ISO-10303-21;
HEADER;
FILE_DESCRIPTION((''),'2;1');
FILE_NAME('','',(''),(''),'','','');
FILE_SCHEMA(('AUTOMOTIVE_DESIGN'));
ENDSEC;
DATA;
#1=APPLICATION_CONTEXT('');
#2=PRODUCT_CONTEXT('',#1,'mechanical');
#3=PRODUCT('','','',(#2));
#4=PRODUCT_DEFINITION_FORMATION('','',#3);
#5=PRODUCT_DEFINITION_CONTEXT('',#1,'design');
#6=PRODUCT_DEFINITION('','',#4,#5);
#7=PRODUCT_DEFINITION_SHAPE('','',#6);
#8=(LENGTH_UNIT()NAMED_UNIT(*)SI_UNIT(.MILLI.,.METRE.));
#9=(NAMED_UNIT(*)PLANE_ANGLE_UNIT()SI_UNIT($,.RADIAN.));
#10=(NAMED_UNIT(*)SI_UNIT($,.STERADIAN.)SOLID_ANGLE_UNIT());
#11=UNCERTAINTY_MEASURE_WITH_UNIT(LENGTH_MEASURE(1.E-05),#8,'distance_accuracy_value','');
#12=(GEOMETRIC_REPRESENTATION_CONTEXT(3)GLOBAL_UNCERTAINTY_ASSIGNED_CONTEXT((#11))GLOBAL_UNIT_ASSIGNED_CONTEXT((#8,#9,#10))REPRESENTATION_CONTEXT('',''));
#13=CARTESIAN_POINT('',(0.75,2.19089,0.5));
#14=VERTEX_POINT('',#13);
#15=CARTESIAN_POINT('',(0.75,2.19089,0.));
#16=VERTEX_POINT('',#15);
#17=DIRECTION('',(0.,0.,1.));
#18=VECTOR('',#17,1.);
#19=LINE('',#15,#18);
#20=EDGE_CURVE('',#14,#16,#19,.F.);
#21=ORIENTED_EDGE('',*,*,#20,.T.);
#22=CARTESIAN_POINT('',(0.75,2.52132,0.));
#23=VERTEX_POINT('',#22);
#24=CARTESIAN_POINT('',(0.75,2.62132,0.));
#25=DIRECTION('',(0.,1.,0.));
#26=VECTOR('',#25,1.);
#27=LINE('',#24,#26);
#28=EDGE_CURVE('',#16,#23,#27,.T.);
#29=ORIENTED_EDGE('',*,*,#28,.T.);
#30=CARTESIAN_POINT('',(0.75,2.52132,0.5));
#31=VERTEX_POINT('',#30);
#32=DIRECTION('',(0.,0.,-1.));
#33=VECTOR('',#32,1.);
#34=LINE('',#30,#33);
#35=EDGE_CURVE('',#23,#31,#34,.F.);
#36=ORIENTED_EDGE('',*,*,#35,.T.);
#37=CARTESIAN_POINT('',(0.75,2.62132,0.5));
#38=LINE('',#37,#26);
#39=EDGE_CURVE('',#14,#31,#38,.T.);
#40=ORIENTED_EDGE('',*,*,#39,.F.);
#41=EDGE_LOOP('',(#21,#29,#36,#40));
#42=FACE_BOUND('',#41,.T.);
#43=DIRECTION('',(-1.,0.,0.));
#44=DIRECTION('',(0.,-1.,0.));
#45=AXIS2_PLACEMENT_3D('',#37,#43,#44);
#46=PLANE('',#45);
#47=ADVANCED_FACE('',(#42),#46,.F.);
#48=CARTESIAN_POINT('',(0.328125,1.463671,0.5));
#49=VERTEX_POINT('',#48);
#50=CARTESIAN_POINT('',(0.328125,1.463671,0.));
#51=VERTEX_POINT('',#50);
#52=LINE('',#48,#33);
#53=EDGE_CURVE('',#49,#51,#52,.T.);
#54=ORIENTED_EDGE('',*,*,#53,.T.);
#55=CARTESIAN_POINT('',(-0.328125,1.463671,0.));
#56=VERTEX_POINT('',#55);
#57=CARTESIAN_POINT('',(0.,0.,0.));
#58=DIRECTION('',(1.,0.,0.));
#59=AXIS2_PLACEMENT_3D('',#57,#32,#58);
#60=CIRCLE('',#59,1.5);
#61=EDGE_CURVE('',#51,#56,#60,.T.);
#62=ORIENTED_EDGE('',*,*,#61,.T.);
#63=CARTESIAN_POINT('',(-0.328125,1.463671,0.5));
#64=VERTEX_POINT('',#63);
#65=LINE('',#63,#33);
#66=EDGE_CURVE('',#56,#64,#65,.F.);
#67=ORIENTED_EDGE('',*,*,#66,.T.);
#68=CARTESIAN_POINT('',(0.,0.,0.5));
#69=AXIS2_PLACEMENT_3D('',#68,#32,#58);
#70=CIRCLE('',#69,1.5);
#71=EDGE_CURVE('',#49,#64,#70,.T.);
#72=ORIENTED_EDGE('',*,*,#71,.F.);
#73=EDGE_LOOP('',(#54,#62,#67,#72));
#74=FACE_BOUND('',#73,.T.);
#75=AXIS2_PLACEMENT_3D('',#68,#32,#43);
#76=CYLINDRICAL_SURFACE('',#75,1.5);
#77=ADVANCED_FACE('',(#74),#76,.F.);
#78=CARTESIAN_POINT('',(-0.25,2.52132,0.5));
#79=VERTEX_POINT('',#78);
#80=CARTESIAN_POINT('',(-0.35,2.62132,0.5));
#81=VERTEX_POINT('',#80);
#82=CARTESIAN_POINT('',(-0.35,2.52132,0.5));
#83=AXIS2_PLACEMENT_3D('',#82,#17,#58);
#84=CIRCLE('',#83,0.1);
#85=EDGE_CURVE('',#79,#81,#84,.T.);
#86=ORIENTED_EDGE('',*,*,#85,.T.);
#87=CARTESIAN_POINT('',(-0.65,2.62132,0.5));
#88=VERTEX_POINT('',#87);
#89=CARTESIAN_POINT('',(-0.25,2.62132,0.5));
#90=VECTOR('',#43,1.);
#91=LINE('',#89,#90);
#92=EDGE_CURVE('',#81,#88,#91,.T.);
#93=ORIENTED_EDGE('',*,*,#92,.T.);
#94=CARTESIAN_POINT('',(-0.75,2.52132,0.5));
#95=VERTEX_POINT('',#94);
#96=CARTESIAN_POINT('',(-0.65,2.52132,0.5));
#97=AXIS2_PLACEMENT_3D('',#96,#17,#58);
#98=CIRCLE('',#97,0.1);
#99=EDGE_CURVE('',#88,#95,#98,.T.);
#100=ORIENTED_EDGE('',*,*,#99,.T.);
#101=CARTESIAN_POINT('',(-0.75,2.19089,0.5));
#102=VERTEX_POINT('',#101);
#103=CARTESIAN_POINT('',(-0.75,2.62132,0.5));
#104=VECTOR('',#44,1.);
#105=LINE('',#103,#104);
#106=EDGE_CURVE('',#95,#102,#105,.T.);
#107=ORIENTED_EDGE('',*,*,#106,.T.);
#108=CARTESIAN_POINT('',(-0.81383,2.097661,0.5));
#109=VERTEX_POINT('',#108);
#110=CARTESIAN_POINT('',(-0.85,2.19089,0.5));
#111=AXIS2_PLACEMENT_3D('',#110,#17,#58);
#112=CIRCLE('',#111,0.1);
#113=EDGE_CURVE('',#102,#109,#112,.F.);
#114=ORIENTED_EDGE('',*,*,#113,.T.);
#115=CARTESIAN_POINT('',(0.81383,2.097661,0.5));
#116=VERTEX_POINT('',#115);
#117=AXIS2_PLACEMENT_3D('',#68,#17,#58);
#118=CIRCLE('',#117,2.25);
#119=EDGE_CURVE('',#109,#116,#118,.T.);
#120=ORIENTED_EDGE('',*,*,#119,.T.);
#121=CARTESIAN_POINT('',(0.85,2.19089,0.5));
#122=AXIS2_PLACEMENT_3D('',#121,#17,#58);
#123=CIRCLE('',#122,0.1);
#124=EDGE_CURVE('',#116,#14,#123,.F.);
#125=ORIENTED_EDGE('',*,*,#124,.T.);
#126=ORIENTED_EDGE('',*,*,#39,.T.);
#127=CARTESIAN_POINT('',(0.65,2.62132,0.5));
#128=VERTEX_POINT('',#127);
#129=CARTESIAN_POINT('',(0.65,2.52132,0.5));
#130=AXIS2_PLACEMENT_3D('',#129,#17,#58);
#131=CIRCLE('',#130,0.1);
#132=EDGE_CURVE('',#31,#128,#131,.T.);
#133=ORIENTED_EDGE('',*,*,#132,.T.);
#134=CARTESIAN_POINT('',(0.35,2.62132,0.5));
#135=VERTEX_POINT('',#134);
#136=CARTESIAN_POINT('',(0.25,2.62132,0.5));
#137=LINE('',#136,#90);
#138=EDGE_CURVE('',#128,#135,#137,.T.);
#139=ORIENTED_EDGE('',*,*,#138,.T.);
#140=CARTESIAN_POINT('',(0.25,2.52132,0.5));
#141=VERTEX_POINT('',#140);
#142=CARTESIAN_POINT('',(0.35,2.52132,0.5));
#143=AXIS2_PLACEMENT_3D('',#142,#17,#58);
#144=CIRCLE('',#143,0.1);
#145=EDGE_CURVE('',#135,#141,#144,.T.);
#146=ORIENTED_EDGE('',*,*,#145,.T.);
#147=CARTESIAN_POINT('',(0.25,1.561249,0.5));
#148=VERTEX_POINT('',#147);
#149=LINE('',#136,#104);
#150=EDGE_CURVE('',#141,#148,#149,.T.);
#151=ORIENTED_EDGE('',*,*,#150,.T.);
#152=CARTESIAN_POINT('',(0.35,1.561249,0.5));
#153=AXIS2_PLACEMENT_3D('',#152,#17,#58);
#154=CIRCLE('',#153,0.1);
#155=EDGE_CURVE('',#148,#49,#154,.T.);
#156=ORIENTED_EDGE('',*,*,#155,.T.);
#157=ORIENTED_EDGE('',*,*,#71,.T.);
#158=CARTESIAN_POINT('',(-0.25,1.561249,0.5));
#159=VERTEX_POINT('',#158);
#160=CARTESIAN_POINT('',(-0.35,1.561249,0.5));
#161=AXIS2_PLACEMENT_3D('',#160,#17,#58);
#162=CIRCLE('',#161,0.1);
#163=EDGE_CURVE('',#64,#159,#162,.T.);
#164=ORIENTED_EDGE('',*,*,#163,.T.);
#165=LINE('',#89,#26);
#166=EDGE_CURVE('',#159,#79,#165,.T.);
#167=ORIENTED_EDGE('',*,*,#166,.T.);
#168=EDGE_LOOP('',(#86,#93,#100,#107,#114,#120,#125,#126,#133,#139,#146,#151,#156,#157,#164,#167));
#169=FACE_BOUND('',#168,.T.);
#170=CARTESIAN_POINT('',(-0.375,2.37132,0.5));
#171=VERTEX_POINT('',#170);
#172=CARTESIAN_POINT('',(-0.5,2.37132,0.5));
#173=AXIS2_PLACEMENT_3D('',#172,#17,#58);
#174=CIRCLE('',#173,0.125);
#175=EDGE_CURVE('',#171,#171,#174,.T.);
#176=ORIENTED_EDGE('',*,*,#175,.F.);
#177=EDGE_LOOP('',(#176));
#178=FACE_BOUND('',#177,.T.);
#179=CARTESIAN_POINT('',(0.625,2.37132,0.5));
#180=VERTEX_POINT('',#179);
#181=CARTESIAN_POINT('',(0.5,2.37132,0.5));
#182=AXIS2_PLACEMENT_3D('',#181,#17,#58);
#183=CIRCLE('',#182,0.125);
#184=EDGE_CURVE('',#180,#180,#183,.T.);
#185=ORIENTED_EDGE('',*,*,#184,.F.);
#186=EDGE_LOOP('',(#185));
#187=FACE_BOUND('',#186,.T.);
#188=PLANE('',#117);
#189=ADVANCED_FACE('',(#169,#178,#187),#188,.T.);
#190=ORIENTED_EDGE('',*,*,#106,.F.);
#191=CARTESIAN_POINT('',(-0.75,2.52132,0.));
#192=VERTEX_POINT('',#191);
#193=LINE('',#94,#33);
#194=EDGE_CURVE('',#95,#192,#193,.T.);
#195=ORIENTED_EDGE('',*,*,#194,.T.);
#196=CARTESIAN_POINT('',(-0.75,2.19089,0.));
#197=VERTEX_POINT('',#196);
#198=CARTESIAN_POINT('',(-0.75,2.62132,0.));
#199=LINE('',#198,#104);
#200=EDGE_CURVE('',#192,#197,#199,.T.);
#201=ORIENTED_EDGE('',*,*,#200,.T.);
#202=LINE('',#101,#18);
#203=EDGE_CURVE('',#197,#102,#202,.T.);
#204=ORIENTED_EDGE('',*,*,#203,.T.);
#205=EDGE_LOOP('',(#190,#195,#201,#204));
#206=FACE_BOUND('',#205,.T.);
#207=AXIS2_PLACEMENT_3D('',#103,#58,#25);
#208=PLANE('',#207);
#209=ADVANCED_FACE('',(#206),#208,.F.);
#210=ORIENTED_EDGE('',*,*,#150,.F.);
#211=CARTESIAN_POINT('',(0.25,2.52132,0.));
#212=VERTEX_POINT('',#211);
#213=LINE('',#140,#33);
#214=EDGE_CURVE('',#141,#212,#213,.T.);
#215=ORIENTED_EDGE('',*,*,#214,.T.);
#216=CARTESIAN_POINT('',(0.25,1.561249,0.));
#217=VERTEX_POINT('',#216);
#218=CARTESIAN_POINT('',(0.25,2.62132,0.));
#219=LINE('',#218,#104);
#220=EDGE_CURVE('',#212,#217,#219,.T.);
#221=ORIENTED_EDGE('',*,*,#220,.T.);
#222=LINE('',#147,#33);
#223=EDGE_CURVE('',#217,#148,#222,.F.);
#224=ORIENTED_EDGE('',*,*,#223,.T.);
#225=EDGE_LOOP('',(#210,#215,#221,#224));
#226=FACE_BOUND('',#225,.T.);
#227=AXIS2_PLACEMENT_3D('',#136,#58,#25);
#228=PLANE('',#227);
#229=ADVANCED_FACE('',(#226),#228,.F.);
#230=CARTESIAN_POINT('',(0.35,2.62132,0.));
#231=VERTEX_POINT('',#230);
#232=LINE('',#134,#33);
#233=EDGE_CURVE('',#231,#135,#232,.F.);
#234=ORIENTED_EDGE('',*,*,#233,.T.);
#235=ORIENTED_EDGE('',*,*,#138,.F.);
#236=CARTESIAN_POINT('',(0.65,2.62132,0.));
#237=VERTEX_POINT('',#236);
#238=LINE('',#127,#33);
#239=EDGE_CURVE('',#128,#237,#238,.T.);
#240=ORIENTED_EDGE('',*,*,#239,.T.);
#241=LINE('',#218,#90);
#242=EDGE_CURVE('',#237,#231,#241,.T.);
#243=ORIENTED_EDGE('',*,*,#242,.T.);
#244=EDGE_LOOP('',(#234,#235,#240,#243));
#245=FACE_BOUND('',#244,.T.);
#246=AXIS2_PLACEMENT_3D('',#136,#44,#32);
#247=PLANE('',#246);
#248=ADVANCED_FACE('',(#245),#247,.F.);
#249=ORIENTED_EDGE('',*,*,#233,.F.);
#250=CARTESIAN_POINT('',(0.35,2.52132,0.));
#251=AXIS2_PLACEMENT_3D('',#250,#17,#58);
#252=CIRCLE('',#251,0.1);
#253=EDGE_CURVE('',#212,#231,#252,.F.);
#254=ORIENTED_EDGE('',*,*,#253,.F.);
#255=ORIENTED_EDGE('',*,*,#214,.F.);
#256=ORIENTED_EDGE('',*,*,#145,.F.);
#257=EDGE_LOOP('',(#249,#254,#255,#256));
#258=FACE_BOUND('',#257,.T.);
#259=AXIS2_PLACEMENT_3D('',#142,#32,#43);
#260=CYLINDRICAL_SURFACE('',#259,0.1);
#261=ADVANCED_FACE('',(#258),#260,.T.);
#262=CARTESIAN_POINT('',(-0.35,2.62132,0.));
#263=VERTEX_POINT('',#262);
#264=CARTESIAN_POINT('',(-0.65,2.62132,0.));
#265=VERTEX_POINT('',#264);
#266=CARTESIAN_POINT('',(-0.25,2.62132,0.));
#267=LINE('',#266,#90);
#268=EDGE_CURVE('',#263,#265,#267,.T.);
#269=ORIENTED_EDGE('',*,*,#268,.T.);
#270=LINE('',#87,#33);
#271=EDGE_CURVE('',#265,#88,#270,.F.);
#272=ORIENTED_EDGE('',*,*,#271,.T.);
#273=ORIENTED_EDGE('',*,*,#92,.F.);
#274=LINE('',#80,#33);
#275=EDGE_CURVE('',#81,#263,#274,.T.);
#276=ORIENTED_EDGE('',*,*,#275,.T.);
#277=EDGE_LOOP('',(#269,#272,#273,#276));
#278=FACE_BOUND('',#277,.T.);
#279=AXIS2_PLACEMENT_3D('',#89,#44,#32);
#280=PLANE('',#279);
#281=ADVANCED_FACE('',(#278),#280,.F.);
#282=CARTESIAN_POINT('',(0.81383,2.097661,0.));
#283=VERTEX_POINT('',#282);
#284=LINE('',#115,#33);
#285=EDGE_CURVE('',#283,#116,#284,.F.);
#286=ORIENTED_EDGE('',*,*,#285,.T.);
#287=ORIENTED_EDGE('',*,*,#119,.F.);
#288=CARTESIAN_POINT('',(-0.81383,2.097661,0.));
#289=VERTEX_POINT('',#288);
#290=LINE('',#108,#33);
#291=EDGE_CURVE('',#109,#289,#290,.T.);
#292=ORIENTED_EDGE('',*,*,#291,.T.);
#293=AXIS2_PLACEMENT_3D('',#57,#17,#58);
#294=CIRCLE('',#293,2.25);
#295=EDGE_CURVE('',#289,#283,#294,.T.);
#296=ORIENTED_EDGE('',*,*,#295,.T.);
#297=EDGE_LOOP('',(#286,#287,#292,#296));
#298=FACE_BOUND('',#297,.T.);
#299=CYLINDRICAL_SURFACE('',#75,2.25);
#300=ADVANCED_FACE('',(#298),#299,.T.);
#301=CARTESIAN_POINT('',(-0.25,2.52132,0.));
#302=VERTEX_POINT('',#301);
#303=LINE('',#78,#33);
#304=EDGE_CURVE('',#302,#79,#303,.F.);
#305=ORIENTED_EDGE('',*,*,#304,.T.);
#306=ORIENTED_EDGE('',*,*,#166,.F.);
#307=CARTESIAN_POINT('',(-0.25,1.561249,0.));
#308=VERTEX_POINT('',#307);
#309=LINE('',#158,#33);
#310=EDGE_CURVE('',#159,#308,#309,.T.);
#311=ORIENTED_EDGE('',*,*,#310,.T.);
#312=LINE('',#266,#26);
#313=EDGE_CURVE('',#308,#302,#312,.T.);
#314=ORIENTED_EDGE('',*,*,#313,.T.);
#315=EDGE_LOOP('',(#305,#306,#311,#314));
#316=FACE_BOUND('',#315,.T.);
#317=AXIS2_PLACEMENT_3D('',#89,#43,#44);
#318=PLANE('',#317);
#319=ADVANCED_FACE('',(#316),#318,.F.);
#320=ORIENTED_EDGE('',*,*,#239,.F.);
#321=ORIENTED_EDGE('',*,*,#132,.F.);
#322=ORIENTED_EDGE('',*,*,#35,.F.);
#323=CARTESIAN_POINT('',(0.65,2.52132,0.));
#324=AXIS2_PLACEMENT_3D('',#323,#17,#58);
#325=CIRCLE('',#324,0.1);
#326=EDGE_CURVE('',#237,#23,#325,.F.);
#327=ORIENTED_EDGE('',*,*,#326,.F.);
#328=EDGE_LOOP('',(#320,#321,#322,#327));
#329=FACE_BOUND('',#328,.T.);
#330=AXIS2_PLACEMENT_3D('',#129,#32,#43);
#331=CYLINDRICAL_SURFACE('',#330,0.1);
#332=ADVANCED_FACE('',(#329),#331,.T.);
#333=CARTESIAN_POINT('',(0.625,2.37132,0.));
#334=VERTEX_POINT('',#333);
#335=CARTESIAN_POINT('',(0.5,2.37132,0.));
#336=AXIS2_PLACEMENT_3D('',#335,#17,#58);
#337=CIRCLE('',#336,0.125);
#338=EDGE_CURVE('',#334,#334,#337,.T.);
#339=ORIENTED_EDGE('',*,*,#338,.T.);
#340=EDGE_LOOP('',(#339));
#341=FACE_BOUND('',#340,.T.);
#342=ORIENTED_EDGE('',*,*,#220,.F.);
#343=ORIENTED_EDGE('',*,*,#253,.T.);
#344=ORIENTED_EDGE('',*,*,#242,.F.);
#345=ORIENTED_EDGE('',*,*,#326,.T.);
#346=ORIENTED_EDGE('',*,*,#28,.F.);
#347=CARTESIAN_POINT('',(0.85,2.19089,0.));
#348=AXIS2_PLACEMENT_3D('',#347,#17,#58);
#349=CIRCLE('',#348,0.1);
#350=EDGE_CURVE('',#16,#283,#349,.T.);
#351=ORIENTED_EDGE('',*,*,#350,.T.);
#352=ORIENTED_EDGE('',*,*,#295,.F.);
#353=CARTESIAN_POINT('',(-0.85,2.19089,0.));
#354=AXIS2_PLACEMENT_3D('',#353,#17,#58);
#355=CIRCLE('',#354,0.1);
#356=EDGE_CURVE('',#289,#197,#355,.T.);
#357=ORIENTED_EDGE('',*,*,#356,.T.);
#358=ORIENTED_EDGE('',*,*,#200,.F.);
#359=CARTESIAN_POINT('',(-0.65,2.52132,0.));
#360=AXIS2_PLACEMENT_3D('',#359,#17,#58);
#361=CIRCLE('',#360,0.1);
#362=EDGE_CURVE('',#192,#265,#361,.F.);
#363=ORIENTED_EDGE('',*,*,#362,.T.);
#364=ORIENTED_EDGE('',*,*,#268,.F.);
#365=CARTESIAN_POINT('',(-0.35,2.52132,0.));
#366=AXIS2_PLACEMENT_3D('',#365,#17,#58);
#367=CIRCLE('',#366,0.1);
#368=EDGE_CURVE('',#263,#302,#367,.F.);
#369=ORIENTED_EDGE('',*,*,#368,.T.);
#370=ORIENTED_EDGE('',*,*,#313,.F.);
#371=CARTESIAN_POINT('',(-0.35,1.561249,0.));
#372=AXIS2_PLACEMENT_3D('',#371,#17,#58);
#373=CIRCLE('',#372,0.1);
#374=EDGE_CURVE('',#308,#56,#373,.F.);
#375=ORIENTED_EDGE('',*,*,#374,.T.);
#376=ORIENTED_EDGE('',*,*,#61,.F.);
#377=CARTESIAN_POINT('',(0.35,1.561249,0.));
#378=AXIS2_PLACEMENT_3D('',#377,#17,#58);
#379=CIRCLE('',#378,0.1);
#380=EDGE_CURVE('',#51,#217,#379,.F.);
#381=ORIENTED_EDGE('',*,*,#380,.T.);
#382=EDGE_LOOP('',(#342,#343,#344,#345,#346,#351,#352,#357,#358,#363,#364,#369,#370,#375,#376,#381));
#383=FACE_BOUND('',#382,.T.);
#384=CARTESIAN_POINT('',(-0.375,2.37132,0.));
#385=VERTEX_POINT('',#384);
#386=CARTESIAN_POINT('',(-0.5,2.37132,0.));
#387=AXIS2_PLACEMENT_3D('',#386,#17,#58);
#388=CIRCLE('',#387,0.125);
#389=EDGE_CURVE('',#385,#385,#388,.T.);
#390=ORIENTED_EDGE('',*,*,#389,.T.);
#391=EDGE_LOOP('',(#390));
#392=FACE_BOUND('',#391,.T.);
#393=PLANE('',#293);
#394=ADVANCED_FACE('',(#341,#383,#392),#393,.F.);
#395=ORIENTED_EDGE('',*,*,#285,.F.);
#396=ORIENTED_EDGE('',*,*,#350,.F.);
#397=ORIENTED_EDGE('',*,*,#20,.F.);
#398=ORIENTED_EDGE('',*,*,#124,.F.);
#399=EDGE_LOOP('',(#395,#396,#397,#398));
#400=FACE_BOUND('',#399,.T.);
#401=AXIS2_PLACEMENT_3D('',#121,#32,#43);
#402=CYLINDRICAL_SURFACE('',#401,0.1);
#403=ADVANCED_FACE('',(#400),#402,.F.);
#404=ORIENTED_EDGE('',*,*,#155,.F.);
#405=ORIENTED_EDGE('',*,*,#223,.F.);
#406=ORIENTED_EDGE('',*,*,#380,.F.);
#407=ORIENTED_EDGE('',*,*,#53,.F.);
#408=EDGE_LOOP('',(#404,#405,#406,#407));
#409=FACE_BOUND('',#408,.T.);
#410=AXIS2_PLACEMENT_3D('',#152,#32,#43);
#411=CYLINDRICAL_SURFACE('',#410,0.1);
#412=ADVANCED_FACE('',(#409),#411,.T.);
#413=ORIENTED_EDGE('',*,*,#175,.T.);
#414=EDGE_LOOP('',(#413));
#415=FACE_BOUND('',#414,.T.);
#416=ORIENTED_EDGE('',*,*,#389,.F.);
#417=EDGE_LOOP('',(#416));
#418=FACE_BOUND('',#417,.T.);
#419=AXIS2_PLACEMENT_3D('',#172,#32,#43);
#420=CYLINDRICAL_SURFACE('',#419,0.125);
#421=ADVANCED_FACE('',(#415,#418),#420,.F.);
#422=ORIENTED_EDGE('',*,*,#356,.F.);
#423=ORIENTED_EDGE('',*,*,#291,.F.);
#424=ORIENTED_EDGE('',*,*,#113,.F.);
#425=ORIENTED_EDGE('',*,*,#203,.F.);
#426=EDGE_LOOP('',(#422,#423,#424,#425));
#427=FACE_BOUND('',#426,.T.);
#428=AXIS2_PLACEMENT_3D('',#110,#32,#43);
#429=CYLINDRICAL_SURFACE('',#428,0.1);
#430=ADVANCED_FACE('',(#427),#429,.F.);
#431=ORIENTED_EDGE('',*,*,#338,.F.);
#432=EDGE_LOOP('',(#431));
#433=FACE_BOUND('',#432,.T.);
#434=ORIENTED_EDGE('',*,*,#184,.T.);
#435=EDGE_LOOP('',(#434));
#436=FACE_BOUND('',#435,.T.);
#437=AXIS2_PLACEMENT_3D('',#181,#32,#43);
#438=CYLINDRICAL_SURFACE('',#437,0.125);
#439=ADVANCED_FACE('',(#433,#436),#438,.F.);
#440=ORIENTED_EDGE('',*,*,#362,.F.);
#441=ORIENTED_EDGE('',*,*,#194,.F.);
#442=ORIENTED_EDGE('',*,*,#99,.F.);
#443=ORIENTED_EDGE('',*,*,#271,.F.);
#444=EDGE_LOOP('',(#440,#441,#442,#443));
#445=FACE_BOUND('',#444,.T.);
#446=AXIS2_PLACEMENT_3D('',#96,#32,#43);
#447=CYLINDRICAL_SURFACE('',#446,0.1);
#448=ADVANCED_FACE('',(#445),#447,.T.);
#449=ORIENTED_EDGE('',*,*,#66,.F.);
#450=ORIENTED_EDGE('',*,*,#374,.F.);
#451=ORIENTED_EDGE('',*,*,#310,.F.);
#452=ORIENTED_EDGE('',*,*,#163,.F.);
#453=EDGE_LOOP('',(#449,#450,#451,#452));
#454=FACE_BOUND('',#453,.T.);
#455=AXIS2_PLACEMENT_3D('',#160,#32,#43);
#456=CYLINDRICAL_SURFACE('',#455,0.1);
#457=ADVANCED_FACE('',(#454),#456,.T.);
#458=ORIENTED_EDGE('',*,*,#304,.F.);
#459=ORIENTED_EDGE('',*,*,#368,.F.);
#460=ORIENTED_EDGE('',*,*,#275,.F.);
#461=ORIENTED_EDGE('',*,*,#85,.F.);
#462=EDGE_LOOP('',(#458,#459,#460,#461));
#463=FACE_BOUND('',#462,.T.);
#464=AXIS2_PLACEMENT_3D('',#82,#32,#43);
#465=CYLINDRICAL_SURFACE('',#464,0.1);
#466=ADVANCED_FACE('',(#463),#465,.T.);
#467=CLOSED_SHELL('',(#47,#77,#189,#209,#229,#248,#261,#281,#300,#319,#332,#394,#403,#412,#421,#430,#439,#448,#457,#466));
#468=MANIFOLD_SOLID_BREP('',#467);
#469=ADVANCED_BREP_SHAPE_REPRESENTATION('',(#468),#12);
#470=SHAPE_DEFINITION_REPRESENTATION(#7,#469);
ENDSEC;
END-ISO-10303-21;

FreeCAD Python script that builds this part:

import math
import FreeCAD as App
import Part
import Sketcher
from FreeCAD import Vector


def edges_at(feature, points):
    """Names of the edges that pass closest to the given points."""
    edges = feature.Shape.Edges
    near = lambda p: min(range(len(edges)), key=lambda i: edges[i].distToShape(Part.Vertex(*p))[0])
    return sorted({f"Edge{near(p) + 1}" for p in points})

doc = App.newDocument("Part")
body = doc.addObject("PartDesign::Body", "Body")

# Sketch on XY plane
sketch1 = doc.addObject("Sketcher::SketchObject", "Sketch")
body.addObject(sketch1)
sketch1.AttachmentSupport = (doc.XY_Plane, [""])
sketch1.MapMode = "FlatFace"
sketch1.addGeometry(Part.LineSegment(Vector(-0.25, 1.48, 0), Vector(-0.25, 2.62, 0)), False)
sketch1.addGeometry(Part.LineSegment(Vector(-0.25, 2.62, 0), Vector(-0.75, 2.62, 0)), False)
sketch1.addGeometry(Part.LineSegment(Vector(-0.75, 2.62, 0), Vector(-0.75, 2.12, 0)), False)
sketch1.addGeometry(Part.ArcOfCircle(Part.Circle(Vector(0, 0, 0), Vector(0, 0, 1), 2.25), math.radians(109), math.radians(431)), False)
sketch1.addGeometry(Part.LineSegment(Vector(0.75, 2.12, 0), Vector(0.75, 2.62, 0)), False)
sketch1.addGeometry(Part.LineSegment(Vector(0.75, 2.62, 0), Vector(0.25, 2.62, 0)), False)
sketch1.addGeometry(Part.LineSegment(Vector(0.25, 2.62, 0), Vector(0.25, 1.48, 0)), False)
sketch1.addGeometry(Part.ArcOfCircle(Part.Circle(Vector(0, 0, 0), Vector(0, 0, 1), 1.5), math.radians(100), math.radians(440)), False)
sketch1.addGeometry(Part.Circle(Vector(0.5, 2.37, 0), Vector(0, 0, 1), 0.12), False)
sketch1.addGeometry(Part.Circle(Vector(-0.5, 2.37, 0), Vector(0, 0, 1), 0.12), False)
sketch1.addConstraint(Sketcher.Constraint("Coincident", 0, 2, 1, 1))
sketch1.addConstraint(Sketcher.Constraint("Coincident", 1, 2, 2, 1))
sketch1.addConstraint(Sketcher.Constraint("Coincident", 2, 2, 3, 1))
sketch1.addConstraint(Sketcher.Constraint("Coincident", 3, 2, 4, 1))
sketch1.addConstraint(Sketcher.Constraint("Coincident", 4, 2, 5, 1))
sketch1.addConstraint(Sketcher.Constraint("Coincident", 5, 2, 6, 1))
sketch1.addConstraint(Sketcher.Constraint("Coincident", 6, 2, 7, 2))
sketch1.addConstraint(Sketcher.Constraint("Coincident", 7, 1, 0, 1))
sketch1.addConstraint(Sketcher.Constraint("Vertical", 0))
sketch1.addConstraint(Sketcher.Constraint("Horizontal", 1))
sketch1.addConstraint(Sketcher.Constraint("Vertical", 2))
sketch1.addConstraint(Sketcher.Constraint("Vertical", 4))
sketch1.addConstraint(Sketcher.Constraint("Horizontal", 5))
sketch1.addConstraint(Sketcher.Constraint("Vertical", 6))
sketch1.addConstraint(Sketcher.Constraint("Coincident", 3, 3, -1, 1))
sketch1.addConstraint(Sketcher.Constraint("Coincident", 7, 3, -1, 1))
sketch1.addConstraint(Sketcher.Constraint("Equal", 8, 9))
sketch1.addConstraint(Sketcher.Constraint("Symmetric", 8, 3, 9, 3, -2))
sketch1.addConstraint(Sketcher.Constraint("Symmetric", 1, 2, 4, 2, -2))
sketch1.addConstraint(Sketcher.Constraint("Horizontal", 6, 2, 7, 1))
sketch1.addConstraint(Sketcher.Constraint("Equal", 5, 2))
sketch1.addConstraint(Sketcher.Constraint("Radius", 7, 1.5))
sketch1.addConstraint(Sketcher.Constraint("Diameter", 8, 0.25))
sketch1.addConstraint(Sketcher.Constraint("Radius", 3, 2.25))
sketch1.addConstraint(Sketcher.Constraint("DistanceX", 1, 2, 1, 1, 0.5))
sketch1.addConstraint(Sketcher.Constraint("DistanceX", 9, 3, 8, 3, 1.0))
sketch1.addConstraint(Sketcher.Constraint("DistanceX", 0, 2, 3, 2, 1.0))
sketch1.addConstraint(Sketcher.Constraint("DistanceY", 9, 3, 0, 2, 0.25))
pad1 = doc.addObject("PartDesign::Pad", "Pad")
body.addObject(pad1)
pad1.Profile = sketch1
pad1.Length = 0.5
doc.recompute()

fillet = doc.addObject("PartDesign::Fillet", "Fillet")
body.addObject(fillet)
fillet.Base = (pad1, edges_at(pad1, [
    (-0.25, 2.621, 0.25),
    (-0.25, 1.479, 0.25),
    (0.25, 1.479, 0.25),
    (0.25, 2.621, 0.25),
    (0.75, 2.621, 0.25),
    (0.75, 2.121, 0.25),
    (-0.75, 2.121, 0.25),
    (-0.75, 2.621, 0.25),
]))
fillet.Radius = 0.1

doc.recompute()
